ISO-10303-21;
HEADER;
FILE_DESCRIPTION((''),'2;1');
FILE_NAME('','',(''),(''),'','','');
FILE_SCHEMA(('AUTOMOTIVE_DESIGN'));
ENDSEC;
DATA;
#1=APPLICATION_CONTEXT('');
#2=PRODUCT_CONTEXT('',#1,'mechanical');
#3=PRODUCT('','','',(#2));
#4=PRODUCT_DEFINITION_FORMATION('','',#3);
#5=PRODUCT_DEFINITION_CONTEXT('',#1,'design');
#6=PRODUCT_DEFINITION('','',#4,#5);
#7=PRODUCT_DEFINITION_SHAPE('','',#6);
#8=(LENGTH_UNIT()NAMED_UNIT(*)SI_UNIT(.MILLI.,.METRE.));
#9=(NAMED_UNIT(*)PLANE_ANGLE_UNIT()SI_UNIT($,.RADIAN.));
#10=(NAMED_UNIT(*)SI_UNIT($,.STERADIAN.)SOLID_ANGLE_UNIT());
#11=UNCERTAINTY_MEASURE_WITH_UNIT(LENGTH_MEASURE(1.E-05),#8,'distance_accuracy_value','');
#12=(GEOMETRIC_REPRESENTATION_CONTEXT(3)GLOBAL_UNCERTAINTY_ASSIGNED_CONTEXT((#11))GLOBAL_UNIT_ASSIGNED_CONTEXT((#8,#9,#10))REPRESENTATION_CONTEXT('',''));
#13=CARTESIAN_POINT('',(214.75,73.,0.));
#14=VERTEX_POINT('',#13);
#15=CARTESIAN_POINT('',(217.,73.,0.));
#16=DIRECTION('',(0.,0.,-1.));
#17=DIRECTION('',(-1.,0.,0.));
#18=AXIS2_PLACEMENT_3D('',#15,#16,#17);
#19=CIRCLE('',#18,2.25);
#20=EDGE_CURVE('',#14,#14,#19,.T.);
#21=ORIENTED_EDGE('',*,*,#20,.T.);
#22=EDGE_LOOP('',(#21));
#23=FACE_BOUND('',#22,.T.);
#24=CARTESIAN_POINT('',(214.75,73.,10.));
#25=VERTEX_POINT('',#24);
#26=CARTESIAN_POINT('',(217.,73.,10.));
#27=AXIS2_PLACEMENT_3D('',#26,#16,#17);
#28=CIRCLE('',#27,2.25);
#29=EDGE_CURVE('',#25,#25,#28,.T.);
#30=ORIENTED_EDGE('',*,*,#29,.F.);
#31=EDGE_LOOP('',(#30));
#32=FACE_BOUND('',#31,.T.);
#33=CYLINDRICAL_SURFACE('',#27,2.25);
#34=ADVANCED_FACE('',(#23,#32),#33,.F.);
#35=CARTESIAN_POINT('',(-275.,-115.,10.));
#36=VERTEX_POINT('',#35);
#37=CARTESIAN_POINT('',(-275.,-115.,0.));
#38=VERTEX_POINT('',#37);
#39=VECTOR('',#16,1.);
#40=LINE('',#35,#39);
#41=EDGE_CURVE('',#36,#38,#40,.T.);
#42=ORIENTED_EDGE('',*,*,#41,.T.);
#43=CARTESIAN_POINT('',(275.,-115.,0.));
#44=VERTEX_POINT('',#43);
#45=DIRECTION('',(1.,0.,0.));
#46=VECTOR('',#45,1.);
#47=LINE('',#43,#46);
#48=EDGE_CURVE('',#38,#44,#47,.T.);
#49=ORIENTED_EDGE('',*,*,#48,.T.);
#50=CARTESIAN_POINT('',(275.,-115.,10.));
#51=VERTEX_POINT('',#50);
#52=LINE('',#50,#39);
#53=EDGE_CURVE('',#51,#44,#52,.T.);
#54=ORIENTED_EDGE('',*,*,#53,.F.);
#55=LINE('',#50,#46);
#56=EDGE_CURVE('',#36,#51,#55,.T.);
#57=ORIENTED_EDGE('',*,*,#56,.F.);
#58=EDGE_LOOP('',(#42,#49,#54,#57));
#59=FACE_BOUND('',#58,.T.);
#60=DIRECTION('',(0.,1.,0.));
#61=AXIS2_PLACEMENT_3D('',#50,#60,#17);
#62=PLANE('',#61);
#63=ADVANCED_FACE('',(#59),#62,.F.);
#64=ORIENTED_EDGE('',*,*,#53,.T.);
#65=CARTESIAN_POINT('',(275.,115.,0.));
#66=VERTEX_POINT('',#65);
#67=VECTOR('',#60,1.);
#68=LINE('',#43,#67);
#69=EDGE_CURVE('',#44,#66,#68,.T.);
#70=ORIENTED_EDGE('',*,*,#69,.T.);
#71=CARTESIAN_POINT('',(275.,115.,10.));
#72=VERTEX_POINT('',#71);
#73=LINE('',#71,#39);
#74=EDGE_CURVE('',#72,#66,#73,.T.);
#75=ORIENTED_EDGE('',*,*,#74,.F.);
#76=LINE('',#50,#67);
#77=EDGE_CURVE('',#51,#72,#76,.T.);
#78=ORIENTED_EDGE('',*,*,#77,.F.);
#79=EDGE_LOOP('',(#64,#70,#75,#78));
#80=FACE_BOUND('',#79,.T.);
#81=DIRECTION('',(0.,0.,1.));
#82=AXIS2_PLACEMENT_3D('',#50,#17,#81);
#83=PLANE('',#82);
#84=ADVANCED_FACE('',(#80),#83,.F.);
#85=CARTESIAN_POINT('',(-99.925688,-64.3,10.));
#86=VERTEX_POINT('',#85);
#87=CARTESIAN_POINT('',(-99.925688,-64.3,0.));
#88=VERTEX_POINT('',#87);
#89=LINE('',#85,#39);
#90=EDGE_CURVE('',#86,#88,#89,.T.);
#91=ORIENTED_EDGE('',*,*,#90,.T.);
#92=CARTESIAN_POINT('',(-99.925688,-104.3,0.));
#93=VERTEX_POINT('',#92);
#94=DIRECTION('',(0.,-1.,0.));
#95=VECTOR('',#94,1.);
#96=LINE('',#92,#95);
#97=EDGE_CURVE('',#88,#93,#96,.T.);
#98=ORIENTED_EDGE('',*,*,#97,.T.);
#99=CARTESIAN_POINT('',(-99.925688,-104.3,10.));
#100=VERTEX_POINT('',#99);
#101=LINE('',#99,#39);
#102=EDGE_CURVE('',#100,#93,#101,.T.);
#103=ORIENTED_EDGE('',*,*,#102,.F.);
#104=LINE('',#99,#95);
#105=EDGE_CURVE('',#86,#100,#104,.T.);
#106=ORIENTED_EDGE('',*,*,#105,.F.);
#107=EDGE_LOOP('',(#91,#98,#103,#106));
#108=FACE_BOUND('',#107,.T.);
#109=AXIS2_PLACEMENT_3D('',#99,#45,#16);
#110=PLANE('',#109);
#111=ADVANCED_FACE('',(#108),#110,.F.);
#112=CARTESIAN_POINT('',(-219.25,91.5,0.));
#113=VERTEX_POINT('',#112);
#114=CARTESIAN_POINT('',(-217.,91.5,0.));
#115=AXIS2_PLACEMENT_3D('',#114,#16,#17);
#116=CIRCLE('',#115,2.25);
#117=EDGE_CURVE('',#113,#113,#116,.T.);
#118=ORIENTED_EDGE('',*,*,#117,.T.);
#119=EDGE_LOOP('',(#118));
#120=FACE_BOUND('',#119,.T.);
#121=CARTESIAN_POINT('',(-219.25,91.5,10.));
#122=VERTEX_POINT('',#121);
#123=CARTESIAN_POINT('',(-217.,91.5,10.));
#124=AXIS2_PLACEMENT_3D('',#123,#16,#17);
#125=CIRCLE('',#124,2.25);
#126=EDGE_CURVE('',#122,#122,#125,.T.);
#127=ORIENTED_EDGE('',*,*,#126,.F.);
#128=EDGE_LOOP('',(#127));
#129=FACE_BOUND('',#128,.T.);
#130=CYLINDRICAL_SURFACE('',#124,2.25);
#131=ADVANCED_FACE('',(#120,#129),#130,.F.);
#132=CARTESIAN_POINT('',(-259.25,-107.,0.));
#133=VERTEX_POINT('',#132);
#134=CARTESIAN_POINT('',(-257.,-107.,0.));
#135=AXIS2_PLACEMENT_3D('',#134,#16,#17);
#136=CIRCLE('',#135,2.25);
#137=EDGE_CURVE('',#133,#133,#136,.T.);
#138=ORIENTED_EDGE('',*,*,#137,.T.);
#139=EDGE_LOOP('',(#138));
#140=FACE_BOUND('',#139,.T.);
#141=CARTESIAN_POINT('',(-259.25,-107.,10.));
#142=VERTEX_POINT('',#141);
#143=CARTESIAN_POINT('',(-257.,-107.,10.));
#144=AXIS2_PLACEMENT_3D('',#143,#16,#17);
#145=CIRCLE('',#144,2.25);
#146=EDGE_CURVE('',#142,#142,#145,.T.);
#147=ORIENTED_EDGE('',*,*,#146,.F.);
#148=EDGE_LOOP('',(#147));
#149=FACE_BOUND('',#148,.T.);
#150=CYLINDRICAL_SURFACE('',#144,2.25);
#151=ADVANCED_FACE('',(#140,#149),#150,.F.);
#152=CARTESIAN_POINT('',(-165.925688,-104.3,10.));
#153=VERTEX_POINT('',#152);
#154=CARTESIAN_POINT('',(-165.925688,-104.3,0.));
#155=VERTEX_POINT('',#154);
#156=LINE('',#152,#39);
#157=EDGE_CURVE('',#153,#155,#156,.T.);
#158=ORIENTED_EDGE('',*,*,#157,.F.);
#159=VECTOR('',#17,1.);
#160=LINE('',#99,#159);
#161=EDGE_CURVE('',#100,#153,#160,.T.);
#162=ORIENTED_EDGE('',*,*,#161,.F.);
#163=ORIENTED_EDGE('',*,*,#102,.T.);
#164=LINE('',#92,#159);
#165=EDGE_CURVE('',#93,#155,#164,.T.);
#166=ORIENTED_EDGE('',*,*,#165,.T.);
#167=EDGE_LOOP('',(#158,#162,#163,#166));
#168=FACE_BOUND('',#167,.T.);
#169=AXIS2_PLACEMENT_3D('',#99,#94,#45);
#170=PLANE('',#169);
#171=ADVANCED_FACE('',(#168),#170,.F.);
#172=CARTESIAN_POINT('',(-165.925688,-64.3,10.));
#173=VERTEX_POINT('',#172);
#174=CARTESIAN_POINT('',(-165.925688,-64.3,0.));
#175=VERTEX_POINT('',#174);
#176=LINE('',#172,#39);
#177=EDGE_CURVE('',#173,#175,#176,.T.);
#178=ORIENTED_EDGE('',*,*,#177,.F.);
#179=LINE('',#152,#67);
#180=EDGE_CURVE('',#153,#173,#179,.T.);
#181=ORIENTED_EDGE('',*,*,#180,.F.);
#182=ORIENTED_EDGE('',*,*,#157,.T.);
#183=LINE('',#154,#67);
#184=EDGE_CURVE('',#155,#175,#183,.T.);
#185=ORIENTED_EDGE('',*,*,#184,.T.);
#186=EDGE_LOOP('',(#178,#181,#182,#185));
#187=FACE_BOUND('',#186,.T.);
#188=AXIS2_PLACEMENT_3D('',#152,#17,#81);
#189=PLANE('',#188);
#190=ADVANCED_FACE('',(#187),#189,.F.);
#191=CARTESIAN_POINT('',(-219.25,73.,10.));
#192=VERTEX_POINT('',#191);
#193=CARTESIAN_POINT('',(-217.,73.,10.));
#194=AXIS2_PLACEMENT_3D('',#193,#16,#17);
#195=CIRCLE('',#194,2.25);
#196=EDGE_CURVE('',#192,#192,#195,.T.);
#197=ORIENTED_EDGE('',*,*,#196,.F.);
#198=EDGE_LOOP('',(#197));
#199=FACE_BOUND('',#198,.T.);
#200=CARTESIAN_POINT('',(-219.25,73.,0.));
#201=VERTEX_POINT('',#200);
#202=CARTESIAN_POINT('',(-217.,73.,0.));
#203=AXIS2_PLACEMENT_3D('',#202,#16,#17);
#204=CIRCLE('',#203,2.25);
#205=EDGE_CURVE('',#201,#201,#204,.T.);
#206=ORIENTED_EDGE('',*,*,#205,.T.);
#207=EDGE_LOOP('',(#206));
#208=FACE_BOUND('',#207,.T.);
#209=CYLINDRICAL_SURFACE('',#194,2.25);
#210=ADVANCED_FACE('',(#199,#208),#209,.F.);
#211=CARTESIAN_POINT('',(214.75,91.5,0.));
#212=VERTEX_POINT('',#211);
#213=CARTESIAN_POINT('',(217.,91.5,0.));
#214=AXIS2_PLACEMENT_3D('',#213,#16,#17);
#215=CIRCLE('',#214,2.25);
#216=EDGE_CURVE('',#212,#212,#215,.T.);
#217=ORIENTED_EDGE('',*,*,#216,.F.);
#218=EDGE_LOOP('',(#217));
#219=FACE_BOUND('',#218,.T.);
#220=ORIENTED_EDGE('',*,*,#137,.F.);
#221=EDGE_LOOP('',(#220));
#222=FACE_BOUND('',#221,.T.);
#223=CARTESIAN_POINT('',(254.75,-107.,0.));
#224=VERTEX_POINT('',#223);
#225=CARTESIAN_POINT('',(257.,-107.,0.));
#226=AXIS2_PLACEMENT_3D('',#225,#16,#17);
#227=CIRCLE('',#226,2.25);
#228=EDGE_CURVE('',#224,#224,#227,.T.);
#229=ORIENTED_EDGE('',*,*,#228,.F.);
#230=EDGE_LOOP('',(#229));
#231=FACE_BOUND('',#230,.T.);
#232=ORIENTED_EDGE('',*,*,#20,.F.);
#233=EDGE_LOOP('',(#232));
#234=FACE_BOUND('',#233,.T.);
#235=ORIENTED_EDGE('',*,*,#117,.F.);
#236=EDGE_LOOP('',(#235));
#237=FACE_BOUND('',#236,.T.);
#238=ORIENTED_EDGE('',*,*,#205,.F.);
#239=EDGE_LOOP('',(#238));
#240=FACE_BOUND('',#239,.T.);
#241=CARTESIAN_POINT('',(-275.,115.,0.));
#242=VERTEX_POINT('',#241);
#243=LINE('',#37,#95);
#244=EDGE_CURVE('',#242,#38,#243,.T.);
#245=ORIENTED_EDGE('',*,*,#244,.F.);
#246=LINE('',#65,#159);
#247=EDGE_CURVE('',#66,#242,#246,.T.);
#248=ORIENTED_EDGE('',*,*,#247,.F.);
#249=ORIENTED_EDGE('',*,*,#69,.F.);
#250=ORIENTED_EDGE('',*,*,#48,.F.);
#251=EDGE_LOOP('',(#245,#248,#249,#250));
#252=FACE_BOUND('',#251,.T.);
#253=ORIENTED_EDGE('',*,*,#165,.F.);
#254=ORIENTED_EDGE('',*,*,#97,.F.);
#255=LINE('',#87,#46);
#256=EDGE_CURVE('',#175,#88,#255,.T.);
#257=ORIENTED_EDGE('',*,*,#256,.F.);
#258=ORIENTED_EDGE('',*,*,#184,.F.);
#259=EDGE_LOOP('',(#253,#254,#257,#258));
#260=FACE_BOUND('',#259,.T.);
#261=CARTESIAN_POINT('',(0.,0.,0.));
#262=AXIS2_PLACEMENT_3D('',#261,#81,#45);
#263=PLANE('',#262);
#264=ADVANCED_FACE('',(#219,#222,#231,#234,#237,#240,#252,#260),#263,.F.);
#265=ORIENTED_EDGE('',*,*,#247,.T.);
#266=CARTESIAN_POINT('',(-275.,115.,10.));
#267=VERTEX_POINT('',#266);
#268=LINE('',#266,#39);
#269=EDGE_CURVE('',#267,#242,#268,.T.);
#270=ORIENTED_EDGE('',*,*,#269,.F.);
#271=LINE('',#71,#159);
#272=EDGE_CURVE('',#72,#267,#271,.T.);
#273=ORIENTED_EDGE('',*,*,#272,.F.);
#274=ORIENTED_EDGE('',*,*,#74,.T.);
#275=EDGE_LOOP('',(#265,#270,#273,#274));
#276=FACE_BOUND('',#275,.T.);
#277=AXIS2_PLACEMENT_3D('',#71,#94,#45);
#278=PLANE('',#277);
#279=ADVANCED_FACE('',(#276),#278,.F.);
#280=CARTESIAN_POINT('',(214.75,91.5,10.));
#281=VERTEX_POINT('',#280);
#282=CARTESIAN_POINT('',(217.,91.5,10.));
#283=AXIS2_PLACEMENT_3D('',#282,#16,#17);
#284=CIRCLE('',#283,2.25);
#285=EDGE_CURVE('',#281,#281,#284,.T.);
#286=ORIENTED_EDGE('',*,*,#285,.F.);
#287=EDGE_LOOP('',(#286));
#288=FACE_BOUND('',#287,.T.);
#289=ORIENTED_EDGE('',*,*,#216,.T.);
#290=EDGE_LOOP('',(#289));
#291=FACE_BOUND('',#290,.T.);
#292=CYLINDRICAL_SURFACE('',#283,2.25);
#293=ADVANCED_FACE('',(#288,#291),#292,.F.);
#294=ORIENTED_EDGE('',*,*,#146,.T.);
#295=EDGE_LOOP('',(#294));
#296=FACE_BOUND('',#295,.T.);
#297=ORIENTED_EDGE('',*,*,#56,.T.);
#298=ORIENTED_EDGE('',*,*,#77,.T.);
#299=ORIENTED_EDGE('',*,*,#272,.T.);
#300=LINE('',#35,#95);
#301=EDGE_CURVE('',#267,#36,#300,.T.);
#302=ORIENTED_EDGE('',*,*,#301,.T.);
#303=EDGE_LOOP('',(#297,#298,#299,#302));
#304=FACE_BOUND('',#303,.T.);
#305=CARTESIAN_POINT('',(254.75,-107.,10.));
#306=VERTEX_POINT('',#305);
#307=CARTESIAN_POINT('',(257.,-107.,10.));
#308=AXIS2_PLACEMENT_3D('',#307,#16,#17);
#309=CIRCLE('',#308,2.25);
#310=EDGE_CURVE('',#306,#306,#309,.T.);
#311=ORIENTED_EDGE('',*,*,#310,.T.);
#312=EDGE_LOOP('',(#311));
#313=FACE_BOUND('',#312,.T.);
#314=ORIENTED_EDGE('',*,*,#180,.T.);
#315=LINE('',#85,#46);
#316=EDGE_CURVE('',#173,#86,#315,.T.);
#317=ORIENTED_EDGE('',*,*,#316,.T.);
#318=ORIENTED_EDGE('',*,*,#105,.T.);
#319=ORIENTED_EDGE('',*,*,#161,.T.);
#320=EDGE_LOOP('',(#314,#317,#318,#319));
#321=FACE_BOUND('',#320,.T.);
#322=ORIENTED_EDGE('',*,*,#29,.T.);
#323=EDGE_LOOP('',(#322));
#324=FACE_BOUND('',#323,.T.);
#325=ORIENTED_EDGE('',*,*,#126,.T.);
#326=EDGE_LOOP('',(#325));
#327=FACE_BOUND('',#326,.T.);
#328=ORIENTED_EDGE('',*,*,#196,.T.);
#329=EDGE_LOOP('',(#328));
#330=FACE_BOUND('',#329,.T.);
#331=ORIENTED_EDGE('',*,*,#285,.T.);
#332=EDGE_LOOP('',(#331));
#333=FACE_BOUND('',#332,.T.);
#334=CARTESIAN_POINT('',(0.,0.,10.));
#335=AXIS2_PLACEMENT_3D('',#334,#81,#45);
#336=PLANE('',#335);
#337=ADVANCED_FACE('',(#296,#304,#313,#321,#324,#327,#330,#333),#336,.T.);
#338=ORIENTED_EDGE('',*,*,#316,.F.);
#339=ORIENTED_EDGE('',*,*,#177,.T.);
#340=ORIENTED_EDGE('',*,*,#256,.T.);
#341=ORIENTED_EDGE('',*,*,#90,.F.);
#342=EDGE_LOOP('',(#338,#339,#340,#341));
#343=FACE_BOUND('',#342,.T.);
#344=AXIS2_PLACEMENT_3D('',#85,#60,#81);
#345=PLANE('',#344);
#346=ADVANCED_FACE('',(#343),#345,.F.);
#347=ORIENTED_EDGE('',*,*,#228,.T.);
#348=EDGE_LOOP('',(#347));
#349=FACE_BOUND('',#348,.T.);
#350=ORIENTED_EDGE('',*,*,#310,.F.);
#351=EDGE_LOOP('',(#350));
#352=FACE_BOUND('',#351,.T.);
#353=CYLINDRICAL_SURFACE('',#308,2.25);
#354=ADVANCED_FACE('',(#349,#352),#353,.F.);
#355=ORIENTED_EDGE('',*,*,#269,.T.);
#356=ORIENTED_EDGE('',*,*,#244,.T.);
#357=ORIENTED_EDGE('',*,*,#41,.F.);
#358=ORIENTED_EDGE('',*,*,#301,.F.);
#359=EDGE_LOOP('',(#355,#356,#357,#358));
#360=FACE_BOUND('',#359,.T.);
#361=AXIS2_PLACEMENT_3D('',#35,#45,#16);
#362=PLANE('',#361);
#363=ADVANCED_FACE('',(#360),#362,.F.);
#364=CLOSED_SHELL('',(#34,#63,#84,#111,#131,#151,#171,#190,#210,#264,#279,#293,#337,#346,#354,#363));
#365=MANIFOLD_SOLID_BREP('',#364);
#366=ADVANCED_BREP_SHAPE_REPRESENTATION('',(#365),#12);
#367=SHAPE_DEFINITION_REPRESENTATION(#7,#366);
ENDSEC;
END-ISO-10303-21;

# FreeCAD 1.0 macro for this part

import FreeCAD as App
import Part
import Sketcher

doc = App.newDocument("Part")
body = doc.addObject("PartDesign::Body", "Body")

# Sketch on XY plane
sketch1 = body.newObject("Sketcher::SketchObject", "Sketch")
sketch1.AttachmentSupport = (doc.getObject("XY_Plane"), [""])
sketch1.MapMode = "FlatFace"
sketch1.addGeometry([
    Part.LineSegment(App.Vector(-275, 115, 0), App.Vector(-275, -115, 0)),
    Part.LineSegment(App.Vector(-275, -115, 0), App.Vector(275, -115, 0)),
    Part.LineSegment(App.Vector(275, -115, 0), App.Vector(275, 115, 0)),
    Part.LineSegment(App.Vector(275, 115, 0), App.Vector(-275, 115, 0)),
], False)
sketch1.addConstraint([
    Sketcher.Constraint("Coincident", 0, 2, 1, 1),
    Sketcher.Constraint("Coincident", 1, 2, 2, 1),
    Sketcher.Constraint("Coincident", 2, 2, 3, 1),
    Sketcher.Constraint("Coincident", 3, 2, 0, 1),
    Sketcher.Constraint("Vertical", 0),
    Sketcher.Constraint("Horizontal", 1),
    Sketcher.Constraint("Vertical", 2),
    Sketcher.Constraint("Horizontal", 3),
    Sketcher.Constraint("Symmetric", 0, 2, 2, 2, -1, 1),
    Sketcher.Constraint("DistanceX", 1, 1, 1, 2, 550.0),
    Sketcher.Constraint("DistanceY", 0, 2, 0, 1, 230.0),
])
pad1 = body.newObject("PartDesign::Pad", "Pad")
pad1.Profile = sketch1
pad1.Length = 10

# Sketch on XY plane
sketch2 = body.newObject("Sketcher::SketchObject", "Sketch001")
sketch2.AttachmentSupport = (doc.getObject("XY_Plane"), [""])
sketch2.MapMode = "FlatFace"
sketch2.addGeometry([
    Part.Circle(App.Vector(217, 91.5, 0), App.Vector(0, 0, 1), 2.25),  # 0
    Part.Circle(App.Vector(217, 73, 0), App.Vector(0, 0, 1), 2.25),  # 1
    Part.Circle(App.Vector(-217, 91.5, 0), App.Vector(0, 0, 1), 2.25),  # 2
    Part.Circle(App.Vector(-217, 73, 0), App.Vector(0, 0, 1), 2.25),  # 3
    Part.Circle(App.Vector(257, -107, 0), App.Vector(0, 0, 1), 2.25),  # 4
    Part.Circle(App.Vector(-257, -107, 0), App.Vector(0, 0, 1), 2.25),  # 5
    Part.LineSegment(App.Vector(-99.925688, -64.3, 0), App.Vector(-99.925688, -104.3, 0)),  # 6
    Part.LineSegment(App.Vector(-99.925688, -104.3, 0), App.Vector(-165.925688, -104.3, 0)),  # 7
    Part.LineSegment(App.Vector(-165.925688, -104.3, 0), App.Vector(-165.925688, -64.3, 0)),  # 8
    Part.LineSegment(App.Vector(-165.925688, -64.3, 0), App.Vector(-99.925688, -64.3, 0)),  # 9
], False)
sketch2.addConstraint([
    Sketcher.Constraint("Coincident", 6, 2, 7, 1),
    Sketcher.Constraint("Coincident", 7, 2, 8, 1),
    Sketcher.Constraint("Coincident", 8, 2, 9, 1),
    Sketcher.Constraint("Coincident", 9, 2, 6, 1),
    Sketcher.Constraint("Vertical", 6),
    Sketcher.Constraint("Horizontal", 7),
    Sketcher.Constraint("Vertical", 8),
    Sketcher.Constraint("Horizontal", 9),
    Sketcher.Constraint("Equal", 0, 1),
    Sketcher.Constraint("Equal", 1, 2),
    Sketcher.Constraint("Equal", 2, 3),
    Sketcher.Constraint("Equal", 3, 4),
    Sketcher.Constraint("Equal", 4, 5),
    Sketcher.Constraint("Symmetric", 0, 3, 2, 3, -2),
    Sketcher.Constraint("Symmetric", 1, 3, 3, 3, -2),
    Sketcher.Constraint("Symmetric", 4, 3, 5, 3, -2),
    Sketcher.Constraint("Vertical", 0, 3, 1, 3),
    Sketcher.Constraint("Diameter", 0, 4.5),
    Sketcher.Constraint("DistanceX", 7, 2, 7, 1, 66.0),
    Sketcher.Constraint("DistanceY", 6, 2, 6, 1, 40.0),
    Sketcher.Constraint("DistanceX", -1, 1, 0, 3, 217.0),
    Sketcher.Constraint("DistanceY", -1, 1, 1, 3, 73.0),
    Sketcher.Constraint("DistanceX", -1, 1, 4, 3, 257.0),
    Sketcher.Constraint("DistanceY", 4, 3, -1, 1, 107.0),
    Sketcher.Constraint("DistanceY", -1, 1, 0, 3, 91.5),
    Sketcher.Constraint("DistanceY", 6, 2, -1, 1, 104.3),
    Sketcher.Constraint("DistanceX", 7, 2, -1, 1, 165.925688),
])
pocket1 = body.newObject("PartDesign::Pocket", "Pocket")
pocket1.Profile = sketch2
pocket1.Length = 10
pocket1.Reversed = True

doc.recompute()
